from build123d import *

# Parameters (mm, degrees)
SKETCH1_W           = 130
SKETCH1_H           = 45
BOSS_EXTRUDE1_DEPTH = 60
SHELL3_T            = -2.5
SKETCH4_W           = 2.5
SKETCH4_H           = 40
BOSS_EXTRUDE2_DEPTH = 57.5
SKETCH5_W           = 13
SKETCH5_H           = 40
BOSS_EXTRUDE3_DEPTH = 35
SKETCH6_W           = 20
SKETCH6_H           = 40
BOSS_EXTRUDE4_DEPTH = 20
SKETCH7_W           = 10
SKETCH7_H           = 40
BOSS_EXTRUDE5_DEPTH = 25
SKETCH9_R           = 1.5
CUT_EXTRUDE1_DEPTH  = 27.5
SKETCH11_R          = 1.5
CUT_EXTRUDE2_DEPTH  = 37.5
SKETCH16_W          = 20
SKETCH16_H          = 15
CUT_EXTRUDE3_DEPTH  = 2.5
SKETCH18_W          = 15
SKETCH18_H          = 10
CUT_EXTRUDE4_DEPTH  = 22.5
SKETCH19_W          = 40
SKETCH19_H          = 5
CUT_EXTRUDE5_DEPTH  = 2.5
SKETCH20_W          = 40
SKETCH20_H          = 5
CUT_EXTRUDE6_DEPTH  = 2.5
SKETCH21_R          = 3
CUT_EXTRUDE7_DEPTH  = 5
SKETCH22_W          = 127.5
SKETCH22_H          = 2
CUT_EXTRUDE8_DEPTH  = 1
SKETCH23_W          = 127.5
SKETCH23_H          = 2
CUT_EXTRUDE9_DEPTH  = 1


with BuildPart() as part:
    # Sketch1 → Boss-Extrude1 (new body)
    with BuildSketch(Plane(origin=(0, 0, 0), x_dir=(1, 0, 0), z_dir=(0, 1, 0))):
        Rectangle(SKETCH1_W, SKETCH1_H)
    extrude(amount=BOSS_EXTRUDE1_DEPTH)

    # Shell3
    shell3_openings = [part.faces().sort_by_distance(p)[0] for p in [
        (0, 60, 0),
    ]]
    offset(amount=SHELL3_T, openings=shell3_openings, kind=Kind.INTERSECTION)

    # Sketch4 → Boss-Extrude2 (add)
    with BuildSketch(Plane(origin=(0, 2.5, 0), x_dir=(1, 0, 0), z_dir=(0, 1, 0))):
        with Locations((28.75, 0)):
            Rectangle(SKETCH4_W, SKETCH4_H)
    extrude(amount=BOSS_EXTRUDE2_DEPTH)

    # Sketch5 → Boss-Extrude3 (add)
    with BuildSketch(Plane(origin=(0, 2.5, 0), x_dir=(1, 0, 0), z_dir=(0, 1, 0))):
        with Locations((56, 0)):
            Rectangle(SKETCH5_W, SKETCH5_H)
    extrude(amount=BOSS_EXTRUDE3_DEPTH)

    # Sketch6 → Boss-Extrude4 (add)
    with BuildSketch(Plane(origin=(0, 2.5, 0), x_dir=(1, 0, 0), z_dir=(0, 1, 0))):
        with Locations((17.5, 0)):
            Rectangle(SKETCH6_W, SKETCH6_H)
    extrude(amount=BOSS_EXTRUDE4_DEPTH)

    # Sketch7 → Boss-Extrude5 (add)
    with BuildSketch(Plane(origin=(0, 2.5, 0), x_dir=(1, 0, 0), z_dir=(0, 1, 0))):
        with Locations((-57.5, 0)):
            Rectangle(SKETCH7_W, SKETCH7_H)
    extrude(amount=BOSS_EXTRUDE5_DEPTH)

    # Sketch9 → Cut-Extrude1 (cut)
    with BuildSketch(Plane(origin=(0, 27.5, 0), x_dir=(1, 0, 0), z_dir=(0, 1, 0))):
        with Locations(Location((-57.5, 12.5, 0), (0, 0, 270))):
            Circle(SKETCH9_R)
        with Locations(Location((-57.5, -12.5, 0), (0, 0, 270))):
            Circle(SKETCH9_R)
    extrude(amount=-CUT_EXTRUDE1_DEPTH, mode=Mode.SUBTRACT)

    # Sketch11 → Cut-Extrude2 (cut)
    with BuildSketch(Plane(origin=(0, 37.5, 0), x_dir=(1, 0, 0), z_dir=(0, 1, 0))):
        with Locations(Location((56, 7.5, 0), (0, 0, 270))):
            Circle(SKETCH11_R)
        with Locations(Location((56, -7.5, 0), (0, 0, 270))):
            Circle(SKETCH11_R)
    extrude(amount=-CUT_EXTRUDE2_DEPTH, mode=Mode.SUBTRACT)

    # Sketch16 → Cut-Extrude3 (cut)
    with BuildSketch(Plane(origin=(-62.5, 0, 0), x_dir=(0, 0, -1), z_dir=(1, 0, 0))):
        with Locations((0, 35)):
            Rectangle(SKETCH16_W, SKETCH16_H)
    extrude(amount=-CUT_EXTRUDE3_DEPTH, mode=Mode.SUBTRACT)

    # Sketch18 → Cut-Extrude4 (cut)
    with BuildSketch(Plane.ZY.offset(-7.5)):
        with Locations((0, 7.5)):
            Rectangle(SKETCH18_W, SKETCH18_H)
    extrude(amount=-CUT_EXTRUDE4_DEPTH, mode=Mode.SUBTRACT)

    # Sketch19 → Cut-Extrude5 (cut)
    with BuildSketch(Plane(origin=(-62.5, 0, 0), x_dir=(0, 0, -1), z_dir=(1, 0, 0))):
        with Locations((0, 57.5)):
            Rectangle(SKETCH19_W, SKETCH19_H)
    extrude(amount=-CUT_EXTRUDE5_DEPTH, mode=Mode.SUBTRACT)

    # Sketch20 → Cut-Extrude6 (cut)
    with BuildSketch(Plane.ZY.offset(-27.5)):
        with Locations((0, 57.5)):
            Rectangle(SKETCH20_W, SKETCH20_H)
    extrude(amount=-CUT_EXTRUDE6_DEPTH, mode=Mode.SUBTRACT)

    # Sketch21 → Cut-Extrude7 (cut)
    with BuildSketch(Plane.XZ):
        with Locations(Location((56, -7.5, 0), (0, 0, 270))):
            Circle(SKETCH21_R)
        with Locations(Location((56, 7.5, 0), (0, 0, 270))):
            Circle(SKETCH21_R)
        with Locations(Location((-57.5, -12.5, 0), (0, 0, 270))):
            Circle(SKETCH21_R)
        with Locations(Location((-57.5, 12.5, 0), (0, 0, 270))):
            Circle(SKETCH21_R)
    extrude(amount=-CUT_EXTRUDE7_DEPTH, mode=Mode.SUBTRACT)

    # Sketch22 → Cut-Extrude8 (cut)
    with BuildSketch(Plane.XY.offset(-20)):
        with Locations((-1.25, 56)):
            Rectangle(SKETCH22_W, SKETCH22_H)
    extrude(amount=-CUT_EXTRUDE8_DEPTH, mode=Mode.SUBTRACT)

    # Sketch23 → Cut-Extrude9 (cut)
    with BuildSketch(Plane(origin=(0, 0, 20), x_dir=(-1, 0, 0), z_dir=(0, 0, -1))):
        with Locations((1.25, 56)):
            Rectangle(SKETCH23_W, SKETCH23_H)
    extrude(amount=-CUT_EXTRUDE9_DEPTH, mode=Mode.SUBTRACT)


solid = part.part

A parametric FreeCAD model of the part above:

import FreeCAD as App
import Part
import Sketcher
from FreeCAD import Vector
Q = App.Units.Quantity


def faces_at(feature, points):
    """Names of the faces that lie closest to the given points."""
    faces = feature.Shape.Faces
    near = lambda p: min(range(len(faces)), key=lambda i: faces[i].distToShape(Part.Vertex(*p))[0])
    return sorted({f"Face{near(p) + 1}" for p in points})


def add_polygon(sketch, points):
    """Adds a closed chain of lines whose ends are joined by coincident constraints."""
    first, n = sketch.GeometryCount, len(points)
    for a, b in zip(points, points[1:] + points[:1]):
        sketch.addGeometry(Part.LineSegment(App.Vector(*a, 0), App.Vector(*b, 0)), False)
    for i in range(n):
        sketch.addConstraint(Sketcher.Constraint("Coincident", first + i, 2, first + (i + 1) % n, 1))

doc = App.newDocument("Part")
params = doc.addObject("Spreadsheet::Sheet", "Params")
for row, (alias, value) in enumerate([
    ("sketch1_width", "130 mm"),
    ("sketch1_height", "45 mm"),
    ("pad1_length", "60 mm"),
    ("thickness_wall", "2.5 mm"),
    ("sketch2_height", "40 mm"),
    ("sketch2_width", "2.5 mm"),
    ("pad2_length", "57.5 mm"),
    ("sketch3_width", "13 mm"),
    ("sketch3_height", "40 mm"),
    ("pad3_length", "35 mm"),
    ("sketch4_width", "20 mm"),
    ("sketch4_height", "40 mm"),
    ("pad4_length", "20 mm"),
    ("sketch5_width", "10 mm"),
    ("sketch5_height", "40 mm"),
    ("pad5_length", "25 mm"),
    ("sketch6_diameter", "3 mm"),
    ("pocket1_length", "27.5 mm"),
    ("sketch7_diameter", "3 mm"),
    ("pocket2_length", "37.5 mm"),
    ("sketch8_width", "15 mm"),
    ("sketch8_height", "20 mm"),
    ("pocket3_length", "2.5 mm"),
    ("sketch9_width", "10 mm"),
    ("sketch9_height", "15 mm"),
    ("pocket4_length", "22.5 mm"),
    ("sketch10_width", "5 mm"),
    ("sketch10_height", "40 mm"),
    ("pocket5_length", "2.5 mm"),
    ("sketch11_width", "5 mm"),
    ("sketch11_height", "40 mm"),
    ("pocket6_length", "2.5 mm"),
    ("sketch12_diameter", "6 mm"),
    ("pocket7_length", "5 mm"),
    ("sketch13_height", "2 mm"),
    ("sketch13_width", "127.5 mm"),
    ("pocket8_length", "1 mm"),
    ("sketch14_height", "2 mm"),
    ("sketch14_width", "127.5 mm"),
    ("pocket9_length", "1 mm"),
], start=1):
    params.set(f"A{row}", alias)
    params.set(f"B{row}", "=" + value)
    params.setAlias(f"B{row}", alias)

body = doc.addObject("PartDesign::Body", "Body")

sketch1 = body.newObject("Sketcher::SketchObject", "Sketch")
sketch1.AttachmentSupport = (doc.getObject("XZ_Plane"), [""])
sketch1.MapMode = "FlatFace"
add_polygon(sketch1, [(-65, -22), (-65, 22), (65, 22), (65, -22)])
sketch1.addConstraint([
    Sketcher.Constraint("Vertical", 0),
    Sketcher.Constraint("Horizontal", 1),
    Sketcher.Constraint("Vertical", 2),
    Sketcher.Constraint("Horizontal", 3),
    Sketcher.Constraint("Symmetric", 0, 2, 2, 2, -1, 1),
    Sketcher.Constraint("DistanceX", 1, 1, 1, 2, Q("130 mm")),
    Sketcher.Constraint("DistanceY", 0, 1, 0, 2, Q("45 mm")),
])
sketch1.setExpression("Constraints[9]", "Params.sketch1_width")
sketch1.setExpression("Constraints[10]", "Params.sketch1_height")
pad1 = body.newObject("PartDesign::Pad", "Pad")
pad1.Profile = sketch1
pad1.setExpression("Length", "Params.pad1_length")
pad1.Reversed = True
doc.recompute()

thickness = body.newObject("PartDesign::Thickness", "Thickness")
thickness.Base = (pad1, faces_at(pad1, [(0, 60, 0)]))
thickness.setExpression("Value", "Params.thickness_wall")
thickness.Reversed = True
thickness.Join = "Intersection"

sketch2 = body.newObject("Sketcher::SketchObject", "Sketch001")
sketch2.AttachmentSupport = (doc.getObject("XZ_Plane"), [""])
sketch2.MapMode = "FlatFace"
sketch2.AttachmentOffset = App.Placement(Vector(0, 0, -2.5), App.Rotation())
add_polygon(sketch2, [(27.5, -20), (27.5, 20), (30, 20), (30, -20)])
sketch2.addConstraint([
    Sketcher.Constraint("Vertical", 0),
    Sketcher.Constraint("Horizontal", 1),
    Sketcher.Constraint("Vertical", 2),
    Sketcher.Constraint("Horizontal", 3),
    Sketcher.Constraint("DistanceY", 0, 1, 0, 2, Q("40 mm")),
    Sketcher.Constraint("DistanceX", 1, 1, 1, 2, Q("2.5 mm")),
    Sketcher.Constraint("DistanceY", -1, 1, 0, 2, Q("20 mm")),
    Sketcher.Constraint("DistanceX", -1, 1, 1, 2, Q("30 mm")),
])
sketch2.setExpression("Constraints[8]", "Params.sketch2_height")
sketch2.setExpression("Constraints[9]", "Params.sketch2_width")
pad2 = body.newObject("PartDesign::Pad", "Pad001")
pad2.Profile = sketch2
pad2.setExpression("Length", "Params.pad2_length")
pad2.Reversed = True

sketch3 = body.newObject("Sketcher::SketchObject", "Sketch002")
sketch3.AttachmentSupport = (doc.getObject("XZ_Plane"), [""])
sketch3.MapMode = "FlatFace"
sketch3.AttachmentOffset = App.Placement(Vector(0, 0, -2.5), App.Rotation())
add_polygon(sketch3, [(50, -20), (50, 20), (62, 20), (62, -20)])
sketch3.addConstraint([
    Sketcher.Constraint("Vertical", 0),
    Sketcher.Constraint("Horizontal", 1),
    Sketcher.Constraint("Vertical", 2),
    Sketcher.Constraint("Horizontal", 3),
    Sketcher.Constraint("DistanceX", 1, 1, 1, 2, Q("13 mm")),
    Sketcher.Constraint("DistanceY", 0, 1, 0, 2, Q("40 mm")),
    Sketcher.Constraint("DistanceY", -1, 1, 0, 2, Q("20 mm")),
    Sketcher.Constraint("DistanceX", -1, 1, 0, 2, Q("49.5 mm")),
])
sketch3.setExpression("Constraints[8]", "Params.sketch3_width")
sketch3.setExpression("Constraints[9]", "Params.sketch3_height")
pad3 = body.newObject("PartDesign::Pad", "Pad002")
pad3.Profile = sketch3
pad3.setExpression("Length", "Params.pad3_length")
pad3.Reversed = True

sketch4 = body.newObject("Sketcher::SketchObject", "Sketch003")
sketch4.AttachmentSupport = (doc.getObject("XZ_Plane"), [""])
sketch4.MapMode = "FlatFace"
sketch4.AttachmentOffset = App.Placement(Vector(0, 0, -2.5), App.Rotation())
add_polygon(sketch4, [(8, -20), (8, 20), (28, 20), (28, -20)])
sketch4.addConstraint([
    Sketcher.Constraint("Vertical", 0),
    Sketcher.Constraint("Horizontal", 1),
    Sketcher.Constraint("Vertical", 2),
    Sketcher.Constraint("Horizontal", 3),
    Sketcher.Constraint("DistanceX", 1, 1, 1, 2, Q("20 mm")),
    Sketcher.Constraint("DistanceY", 0, 1, 0, 2, Q("40 mm")),
    Sketcher.Constraint("DistanceY", -1, 1, 0, 2, Q("20 mm")),
    Sketcher.Constraint("DistanceX", -1, 1, 0, 2, Q("7.5 mm")),
])
sketch4.setExpression("Constraints[8]", "Params.sketch4_width")
sketch4.setExpression("Constraints[9]", "Params.sketch4_height")
pad4 = body.newObject("PartDesign::Pad", "Pad003")
pad4.Profile = sketch4
pad4.setExpression("Length", "Params.pad4_length")
pad4.Reversed = True

sketch5 = body.newObject("Sketcher::SketchObject", "Sketch004")
sketch5.AttachmentSupport = (doc.getObject("XZ_Plane"), [""])
sketch5.MapMode = "FlatFace"
sketch5.AttachmentOffset = App.Placement(Vector(0, 0, -2.5), App.Rotation())
add_polygon(sketch5, [(-62, -20), (-62, 20), (-52, 20), (-52, -20)])
sketch5.addConstraint([
    Sketcher.Constraint("Vertical", 0),
    Sketcher.Constraint("Horizontal", 1),
    Sketcher.Constraint("Vertical", 2),
    Sketcher.Constraint("Horizontal", 3),
    Sketcher.Constraint("DistanceX", 1, 1, 1, 2, Q("10 mm")),
    Sketcher.Constraint("DistanceY", 0, 1, 0, 2, Q("40 mm")),
    Sketcher.Constraint("DistanceY", -1, 1, 0, 2, Q("20 mm")),
    Sketcher.Constraint("DistanceX", 0, 2, -1, 1, Q("62.5 mm")),
])
sketch5.setExpression("Constraints[8]", "Params.sketch5_width")
sketch5.setExpression("Constraints[9]", "Params.sketch5_height")
pad5 = body.newObject("PartDesign::Pad", "Pad004")
pad5.Profile = sketch5
pad5.setExpression("Length", "Params.pad5_length")
pad5.Reversed = True

sketch6 = body.newObject("Sketcher::SketchObject", "Sketch005")
sketch6.AttachmentSupport = (doc.getObject("XZ_Plane"), [""])
sketch6.MapMode = "FlatFace"
sketch6.AttachmentOffset = App.Placement(Vector(0, 0, -27.5), App.Rotation())
sketch6.addGeometry([
    Part.Circle(Vector(-57.5, -12.5, 0), Vector(0, 0, 1), 1.5),
    Part.Circle(Vector(-57.5, 12.5, 0), Vector(0, 0, 1), 1.5),
], False)
sketch6.addConstraint([
    Sketcher.Constraint("Equal", 0, 1),
    Sketcher.Constraint("Symmetric", 0, 3, 1, 3, -1),
    Sketcher.Constraint("Diameter", 0, Q("3 mm")),
    Sketcher.Constraint("DistanceY", 0, 3, 1, 3, Q("25 mm")),
    Sketcher.Constraint("DistanceX", 0, 3, -1, 1, Q("57.5 mm")),
])
sketch6.setExpression("Constraints[2]", "Params.sketch6_diameter")
pocket1 = body.newObject("PartDesign::Pocket", "Pocket")
pocket1.Profile = sketch6
pocket1.setExpression("Length", "Params.pocket1_length")
pocket1.Reversed = True

sketch7 = body.newObject("Sketcher::SketchObject", "Sketch006")
sketch7.AttachmentSupport = (doc.getObject("XZ_Plane"), [""])
sketch7.MapMode = "FlatFace"
sketch7.AttachmentOffset = App.Placement(Vector(0, 0, -37.5), App.Rotation())
sketch7.addGeometry([
    Part.Circle(Vector(56, -7.5, 0), Vector(0, 0, 1), 1.5),
    Part.Circle(Vector(56, 7.5, 0), Vector(0, 0, 1), 1.5),
], False)
sketch7.addConstraint([
    Sketcher.Constraint("Equal", 0, 1),
    Sketcher.Constraint("Symmetric", 0, 3, 1, 3, -1),
    Sketcher.Constraint("Diameter", 0, Q("3 mm")),
    Sketcher.Constraint("DistanceX", -1, 1, 0, 3, Q("56 mm")),
    Sketcher.Constraint("DistanceY", 0, 3, 1, 3, Q("15 mm")),
])
sketch7.setExpression("Constraints[2]", "Params.sketch7_diameter")
pocket2 = body.newObject("PartDesign::Pocket", "Pocket001")
pocket2.Profile = sketch7
pocket2.setExpression("Length", "Params.pocket2_length")
pocket2.Reversed = True

sketch8 = body.newObject("Sketcher::SketchObject", "Sketch007")
sketch8.AttachmentSupport = (doc.getObject("YZ_Plane"), [""])
sketch8.MapMode = "FlatFace"
sketch8.AttachmentOffset = App.Placement(Vector(0, 0, -62.5), App.Rotation())
add_polygon(sketch8, [(42, 10), (28, 10), (28, -10), (42, -10)])
sketch8.addConstraint([
    Sketcher.Constraint("Horizontal", 0),
    Sketcher.Constraint("Vertical", 1),
    Sketcher.Constraint("Horizontal", 2),
    Sketcher.Constraint("Vertical", 3),
    Sketcher.Constraint("DistanceX", 0, 2, 0, 1, Q("15 mm")),
    Sketcher.Constraint("DistanceY", 1, 2, 1, 1, Q("20 mm")),
    Sketcher.Constraint("DistanceY", -1, 1, 0, 2, Q("10 mm")),
    Sketcher.Constraint("DistanceX", -1, 1, 0, 2, Q("27.5 mm")),
])
sketch8.setExpression("Constraints[8]", "Params.sketch8_width")
sketch8.setExpression("Constraints[9]", "Params.sketch8_height")
pocket3 = body.newObject("PartDesign::Pocket", "Pocket002")
pocket3.Profile = sketch8
pocket3.setExpression("Length", "Params.pocket3_length")

sketch9 = body.newObject("Sketcher::SketchObject", "Sketch008")
sketch9.AttachmentSupport = (doc.getObject("YZ_Plane"), [""])
sketch9.MapMode = "FlatFace"
sketch9.AttachmentOffset = App.Placement(Vector(0, 0, 7.5), App.Rotation())
add_polygon(sketch9, [(12, -8), (2, -8), (2, 8), (12, 8)])
sketch9.addConstraint([
    Sketcher.Constraint("Horizontal", 0),
    Sketcher.Constraint("Vertical", 1),
    Sketcher.Constraint("Horizontal", 2),
    Sketcher.Constraint("Vertical", 3),
    Sketcher.Constraint("DistanceX", 0, 2, 0, 1, Q("10 mm")),
    Sketcher.Constraint("DistanceY", 1, 1, 1, 2, Q("15 mm")),
    Sketcher.Constraint("DistanceX", -1, 1, 0, 2, Q("2.5 mm")),
    Sketcher.Constraint("DistanceY", 0, 2, -1, 1, Q("7.5 mm")),
])
sketch9.setExpression("Constraints[8]", "Params.sketch9_width")
sketch9.setExpression("Constraints[9]", "Params.sketch9_height")
pocket4 = body.newObject("PartDesign::Pocket", "Pocket003")
pocket4.Profile = sketch9
pocket4.setExpression("Length", "Params.pocket4_length")
pocket4.Reversed = True

sketch10 = body.newObject("Sketcher::SketchObject", "Sketch009")
sketch10.AttachmentSupport = (doc.getObject("YZ_Plane"), [""])
sketch10.MapMode = "FlatFace"
sketch10.AttachmentOffset = App.Placement(Vector(0, 0, -62.5), App.Rotation())
add_polygon(sketch10, [(60, 20), (55, 20), (55, -20), (60, -20)])
sketch10.addConstraint([
    Sketcher.Constraint("Horizontal", 0),
    Sketcher.Constraint("Vertical", 1),
    Sketcher.Constraint("Horizontal", 2),
    Sketcher.Constraint("Vertical", 3),
    Sketcher.Constraint("DistanceX", 0, 2, 0, 1, Q("5 mm")),
    Sketcher.Constraint("DistanceY", 1, 2, 1, 1, Q("40 mm")),
    Sketcher.Constraint("DistanceX", -1, 1, 0, 2, Q("55 mm")),
    Sketcher.Constraint("DistanceY", -1, 1, 0, 2, Q("20 mm")),
])
sketch10.setExpression("Constraints[8]", "Params.sketch10_width")
sketch10.setExpression("Constraints[9]", "Params.sketch10_height")
pocket5 = body.newObject("PartDesign::Pocket", "Pocket004")
pocket5.Profile = sketch10
pocket5.setExpression("Length", "Params.pocket5_length")

sketch11 = body.newObject("Sketcher::SketchObject", "Sketch010")
sketch11.AttachmentSupport = (doc.getObject("YZ_Plane"), [""])
sketch11.MapMode = "FlatFace"
sketch11.AttachmentOffset = App.Placement(Vector(0, 0, 27.5), App.Rotation())
add_polygon(sketch11, [(60, -20), (55, -20), (55, 20), (60, 20)])
sketch11.addConstraint([
    Sketcher.Constraint("Horizontal", 0),
    Sketcher.Constraint("Vertical", 1),
    Sketcher.Constraint("Horizontal", 2),
    Sketcher.Constraint("Vertical", 3),
    Sketcher.Constraint("DistanceX", 0, 2, 0, 1, Q("5 mm")),
    Sketcher.Constraint("DistanceY", 1, 1, 1, 2, Q("40 mm")),
    Sketcher.Constraint("DistanceX", -1, 1, 0, 2, Q("55 mm")),
    Sketcher.Constraint("DistanceY", 0, 2, -1, 1, Q("20 mm")),
])
sketch11.setExpression("Constraints[8]", "Params.sketch11_width")
sketch11.setExpression("Constraints[9]", "Params.sketch11_height")
pocket6 = body.newObject("PartDesign::Pocket", "Pocket005")
pocket6.Profile = sketch11
pocket6.setExpression("Length", "Params.pocket6_length")
pocket6.Reversed = True

sketch12 = body.newObject("Sketcher::SketchObject", "Sketch011")
sketch12.AttachmentSupport = (doc.getObject("XZ_Plane"), [""])
sketch12.MapMode = "FlatFace"
sketch12.addGeometry([
    Part.Circle(Vector(56, -7.5, 0), Vector(0, 0, 1), 3),
    Part.Circle(Vector(56, 7.5, 0), Vector(0, 0, 1), 3),
    Part.Circle(Vector(-57.5, -12.5, 0), Vector(0, 0, 1), 3),
    Part.Circle(Vector(-57.5, 12.5, 0), Vector(0, 0, 1), 3),
], False)
sketch12.addConstraint([
    Sketcher.Constraint("Equal", 0, 1),
    Sketcher.Constraint("Equal", 1, 2),
    Sketcher.Constraint("Equal", 2, 3),
    Sketcher.Constraint("Symmetric", 0, 3, 1, 3, -1),
    Sketcher.Constraint("Symmetric", 2, 3, 3, 3, -1),
    Sketcher.Constraint("Diameter", 0, Q("6 mm")),
    Sketcher.Constraint("DistanceX", -1, 1, 0, 3, Q("56 mm")),
    Sketcher.Constraint("DistanceY", 0, 3, 1, 3, Q("15 mm")),
    Sketcher.Constraint("DistanceY", 2, 3, 0, 3, Q("5 mm")),
    Sketcher.Constraint("DistanceX", 2, 3, -1, 1, Q("57.5 mm")),
])
sketch12.setExpression("Constraints[5]", "Params.sketch12_diameter")
pocket7 = body.newObject("PartDesign::Pocket", "Pocket006")
pocket7.Profile = sketch12
pocket7.setExpression("Length", "Params.pocket7_length")

sketch13 = body.newObject("Sketcher::SketchObject", "Sketch012")
sketch13.AttachmentSupport = (doc.getObject("XY_Plane"), [""])
sketch13.MapMode = "FlatFace"
sketch13.AttachmentOffset = App.Placement(Vector(0, 0, -20), App.Rotation())
add_polygon(sketch13, [(-65, 57), (-65, 55), (62.5, 55), (62.5, 57)])
sketch13.addConstraint([
    Sketcher.Constraint("Vertical", 0),
    Sketcher.Constraint("Horizontal", 1),
    Sketcher.Constraint("Vertical", 2),
    Sketcher.Constraint("Horizontal", 3),
    Sketcher.Constraint("DistanceY", 0, 2, 0, 1, Q("2 mm")),
    Sketcher.Constraint("DistanceX", 1, 1, 1, 2, Q("127.5 mm")),
    Sketcher.Constraint("DistanceX", 0, 2, -1, 1, Q("65 mm")),
    Sketcher.Constraint("DistanceY", -1, 1, 0, 2, Q("55 mm")),
])
sketch13.setExpression("Constraints[8]", "Params.sketch13_height")
sketch13.setExpression("Constraints[9]", "Params.sketch13_width")
pocket8 = body.newObject("PartDesign::Pocket", "Pocket007")
pocket8.Profile = sketch13
pocket8.setExpression("Length", "Params.pocket8_length")

sketch14 = body.newObject("Sketcher::SketchObject", "Sketch013")
sketch14.AttachmentSupport = (doc.getObject("XY_Plane"), [""])
sketch14.MapMode = "FlatFace"
sketch14.AttachmentOffset = App.Placement(Vector(0, 0, 20), App.Rotation())
add_polygon(sketch14, [(62.5, 57), (62.5, 55), (-65, 55), (-65, 57)])
sketch14.addConstraint([
    Sketcher.Constraint("Vertical", 0),
    Sketcher.Constraint("Horizontal", 1),
    Sketcher.Constraint("Vertical", 2),
    Sketcher.Constraint("Horizontal", 3),
    Sketcher.Constraint("DistanceY", 0, 2, 0, 1, Q("2 mm")),
    Sketcher.Constraint("DistanceX", 1, 2, 1, 1, Q("127.5 mm")),
    Sketcher.Constraint("DistanceY", -1, 1, 0, 2, Q("55 mm")),
    Sketcher.Constraint("DistanceX", 1, 2, -1, 1, Q("65 mm")),
])
sketch14.setExpression("Constraints[8]", "Params.sketch14_height")
sketch14.setExpression("Constraints[9]", "Params.sketch14_width")
pocket9 = body.newObject("PartDesign::Pocket", "Pocket008")
pocket9.Profile = sketch14
pocket9.setExpression("Length", "Params.pocket9_length")
pocket9.Reversed = True

doc.recompute()
